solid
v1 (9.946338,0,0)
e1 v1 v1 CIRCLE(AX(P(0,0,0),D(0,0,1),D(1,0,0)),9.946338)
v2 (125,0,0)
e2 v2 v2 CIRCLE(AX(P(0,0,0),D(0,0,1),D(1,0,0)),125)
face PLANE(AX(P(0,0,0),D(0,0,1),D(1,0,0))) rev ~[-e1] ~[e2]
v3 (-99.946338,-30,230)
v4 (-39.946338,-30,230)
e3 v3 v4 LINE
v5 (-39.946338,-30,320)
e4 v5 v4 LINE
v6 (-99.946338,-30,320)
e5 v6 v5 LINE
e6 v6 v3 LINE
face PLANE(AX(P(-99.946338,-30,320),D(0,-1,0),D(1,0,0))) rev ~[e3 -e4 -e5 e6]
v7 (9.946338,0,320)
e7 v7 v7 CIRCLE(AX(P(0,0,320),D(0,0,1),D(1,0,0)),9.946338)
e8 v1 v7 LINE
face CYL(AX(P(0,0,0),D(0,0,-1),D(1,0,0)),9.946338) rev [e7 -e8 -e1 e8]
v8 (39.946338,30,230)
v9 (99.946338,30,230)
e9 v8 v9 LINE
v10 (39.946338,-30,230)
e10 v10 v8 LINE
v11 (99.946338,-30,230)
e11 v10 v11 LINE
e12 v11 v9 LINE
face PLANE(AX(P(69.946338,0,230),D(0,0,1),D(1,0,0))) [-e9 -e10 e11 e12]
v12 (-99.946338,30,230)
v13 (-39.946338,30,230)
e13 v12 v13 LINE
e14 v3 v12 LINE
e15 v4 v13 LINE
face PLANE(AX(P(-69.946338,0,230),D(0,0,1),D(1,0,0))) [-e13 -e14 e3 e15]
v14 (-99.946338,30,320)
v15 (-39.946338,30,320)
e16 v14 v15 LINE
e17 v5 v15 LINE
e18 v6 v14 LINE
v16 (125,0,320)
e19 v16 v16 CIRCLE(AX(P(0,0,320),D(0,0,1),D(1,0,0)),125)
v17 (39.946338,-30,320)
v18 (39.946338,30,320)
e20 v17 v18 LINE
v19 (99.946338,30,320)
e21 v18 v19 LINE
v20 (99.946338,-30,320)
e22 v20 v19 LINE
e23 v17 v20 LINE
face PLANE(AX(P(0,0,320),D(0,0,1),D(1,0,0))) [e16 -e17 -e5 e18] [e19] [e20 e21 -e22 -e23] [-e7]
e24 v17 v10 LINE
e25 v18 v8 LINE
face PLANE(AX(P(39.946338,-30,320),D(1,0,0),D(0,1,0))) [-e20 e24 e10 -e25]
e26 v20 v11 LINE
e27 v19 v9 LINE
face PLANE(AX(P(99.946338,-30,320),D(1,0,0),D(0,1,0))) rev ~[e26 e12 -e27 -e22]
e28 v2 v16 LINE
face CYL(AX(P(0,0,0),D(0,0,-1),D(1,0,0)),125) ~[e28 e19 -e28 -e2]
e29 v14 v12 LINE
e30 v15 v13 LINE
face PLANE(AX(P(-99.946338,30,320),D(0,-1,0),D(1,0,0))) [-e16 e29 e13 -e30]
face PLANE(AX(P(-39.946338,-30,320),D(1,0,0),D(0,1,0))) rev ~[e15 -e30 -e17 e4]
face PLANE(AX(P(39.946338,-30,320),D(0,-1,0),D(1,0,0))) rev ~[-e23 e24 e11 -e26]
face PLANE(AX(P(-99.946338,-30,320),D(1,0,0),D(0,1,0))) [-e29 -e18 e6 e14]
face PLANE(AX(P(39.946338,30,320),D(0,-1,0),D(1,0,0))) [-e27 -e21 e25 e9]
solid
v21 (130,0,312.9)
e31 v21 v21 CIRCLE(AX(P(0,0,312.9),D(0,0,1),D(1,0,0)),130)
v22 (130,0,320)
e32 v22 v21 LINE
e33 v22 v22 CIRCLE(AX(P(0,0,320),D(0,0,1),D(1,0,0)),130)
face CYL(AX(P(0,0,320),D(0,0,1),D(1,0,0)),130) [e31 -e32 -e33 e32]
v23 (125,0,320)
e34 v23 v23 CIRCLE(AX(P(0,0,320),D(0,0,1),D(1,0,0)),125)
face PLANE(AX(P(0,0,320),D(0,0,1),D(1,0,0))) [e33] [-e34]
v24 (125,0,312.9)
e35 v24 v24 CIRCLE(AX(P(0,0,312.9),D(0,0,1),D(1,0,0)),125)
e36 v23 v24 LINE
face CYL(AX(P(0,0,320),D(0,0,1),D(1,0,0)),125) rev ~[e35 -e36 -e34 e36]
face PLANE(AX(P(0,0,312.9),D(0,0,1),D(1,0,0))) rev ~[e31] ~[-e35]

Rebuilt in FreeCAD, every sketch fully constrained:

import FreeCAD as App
import Part
import Sketcher
from FreeCAD import Vector

doc = App.newDocument("Part")
params = doc.addObject("Spreadsheet::Sheet", "Params")
for row, (alias, value) in enumerate([
    ("sketch1_diameter", "250 mm"),
    ("pad1_length", "320 mm"),
    ("pocket1_length", "25 mm"),
    ("sketch3_width", "60 mm"),
    ("pocket2_length", "90 mm"),
    ("sketch4_diameter", "260 mm"),
    ("sketch4_diameter2", "250 mm"),
    ("pad2_length", "7.1 mm"),
], start=1):
    params.set(f"A{row}", alias)
    params.set(f"B{row}", "=" + value)
    params.setAlias(f"B{row}", alias)

body = doc.addObject("PartDesign::Body", "Body")

# Sketch on XY plane
sketch1 = doc.addObject("Sketcher::SketchObject", "Sketch")
body.addObject(sketch1)
sketch1.AttachmentSupport = (doc.XY_Plane, [""])
sketch1.MapMode = "FlatFace"
sketch1.addGeometry([
    Part.Circle(Vector(0, 0, 0), Vector(0, 0, 1), 125),
    Part.Circle(Vector(0, 0, 0), Vector(0, 0, 1), 10),
], False)
sketch1.addConstraint([
    Sketcher.Constraint("Coincident", 0, 3, -1, 1),
    Sketcher.Constraint("Coincident", 1, 3, -1, 1),
    Sketcher.Constraint("Diameter", 0, 250.0),
    Sketcher.Constraint("Diameter", 1, 19.892677),
])
sketch1.setExpression("Constraints[2]", "Params.sketch1_diameter")
pad1 = doc.addObject("PartDesign::Pad", "Pad")
body.addObject(pad1)
pad1.Profile = sketch1
pad1.setExpression("Length", "Params.pad1_length")

# Sketch on XY plane
sketch2 = doc.addObject("Sketcher::SketchObject", "Sketch001")
body.addObject(sketch2)
sketch2.AttachmentSupport = (doc.XY_Plane, [""])
sketch2.MapMode = "FlatFace"
sketch2.AttachmentOffset = App.Placement(Vector(0, 0, 320), App.Rotation())
sketch2.addGeometry(Part.Circle(Vector(0, 0, 0), Vector(0, 0, 1), 0.9), False)
sketch2.addConstraint([
    Sketcher.Constraint("Coincident", 0, 3, -1, 1),
    Sketcher.Constraint("Diameter", 0, 1.845436),
])
pocket1 = doc.addObject("PartDesign::Pocket", "Pocket")
body.addObject(pocket1)
pocket1.Profile = sketch2
pocket1.setExpression("Length", "Params.pocket1_length")

# Sketch on XY plane
sketch3 = doc.addObject("Sketcher::SketchObject", "Sketch002")
body.addObject(sketch3)
sketch3.AttachmentSupport = (doc.XY_Plane, [""])
sketch3.MapMode = "FlatFace"
sketch3.AttachmentOffset = App.Placement(Vector(0, 0, 320), App.Rotation())
sketch3.addGeometry([
    Part.LineSegment(Vector(-100, 30, 0), Vector(-100, -30, 0)),  # 0
    Part.LineSegment(Vector(-100, -30, 0), Vector(-40, -30, 0)),  # 1
    Part.LineSegment(Vector(-40, -30, 0), Vector(-40, 30, 0)),  # 2
    Part.LineSegment(Vector(-40, 30, 0), Vector(-100, 30, 0)),  # 3
    Part.LineSegment(Vector(40, 30, 0), Vector(40, -30, 0)),  # 4
    Part.LineSegment(Vector(40, -30, 0), Vector(100, -30, 0)),  # 5
    Part.LineSegment(Vector(100, -30, 0), Vector(100, 30, 0)),  # 6
    Part.LineSegment(Vector(100, 30, 0), Vector(40, 30, 0)),  # 7
], False)
sketch3.addConstraint([
    Sketcher.Constraint("Coincident", 0, 2, 1, 1),
    Sketcher.Constraint("Coincident", 1, 2, 2, 1),
    Sketcher.Constraint("Coincident", 2, 2, 3, 1),
    Sketcher.Constraint("Coincident", 3, 2, 0, 1),
    Sketcher.Constraint("Coincident", 4, 2, 5, 1),
    Sketcher.Constraint("Coincident", 5, 2, 6, 1),
    Sketcher.Constraint("Coincident", 6, 2, 7, 1),
    Sketcher.Constraint("Coincident", 7, 2, 4, 1),
    Sketcher.Constraint("Vertical", 0),
    Sketcher.Constraint("Horizontal", 1),
    Sketcher.Constraint("Vertical", 2),
    Sketcher.Constraint("Horizontal", 3),
    Sketcher.Constraint("Vertical", 4),
    Sketcher.Constraint("Horizontal", 5),
    Sketcher.Constraint("Vertical", 6),
    Sketcher.Constraint("Horizontal", 7),
    Sketcher.Constraint("Symmetric", 2, 2, 4, 2, -1, 1),
    Sketcher.Constraint("Symmetric", 0, 2, 6, 2, -1, 1),
    Sketcher.Constraint("Horizontal", 1, 2, 4, 2),
    Sketcher.Constraint("Equal", 7, 0),
    Sketcher.Constraint("DistanceX", 1, 1, 1, 2, 60.0),
    Sketcher.Constraint("DistanceX", 0, 2, -1, 1, 99.946338),
])
sketch3.setExpression("Constraints[20]", "Params.sketch3_width")
pocket2 = doc.addObject("PartDesign::Pocket", "Pocket001")
body.addObject(pocket2)
pocket2.Profile = sketch3
pocket2.setExpression("Length", "Params.pocket2_length")
body2 = doc.addObject("PartDesign::Body", "Body001")

# Sketch on XY plane
sketch4 = doc.addObject("Sketcher::SketchObject", "Sketch003")
body2.addObject(sketch4)
sketch4.AttachmentSupport = (doc.getObject("XY_Plane001"), [""])
sketch4.MapMode = "FlatFace"
sketch4.AttachmentOffset = App.Placement(Vector(0, 0, 320), App.Rotation())
sketch4.addGeometry([
    Part.Circle(Vector(0, 0, 0), Vector(0, 0, 1), 130),
    Part.Circle(Vector(0, 0, 0), Vector(0, 0, 1), 125),
], False)
sketch4.addConstraint([
    Sketcher.Constraint("Coincident", 0, 3, -1, 1),
    Sketcher.Constraint("Coincident", 1, 3, -1, 1),
    Sketcher.Constraint("Diameter", 0, 260.0),
    Sketcher.Constraint("Diameter", 1, 250.0),
])
sketch4.setExpression("Constraints[2]", "Params.sketch4_diameter")
sketch4.setExpression("Constraints[3]", "Params.sketch4_diameter2")
pad2 = doc.addObject("PartDesign::Pad", "Pad001")
body2.addObject(pad2)
pad2.Profile = sketch4
pad2.setExpression("Length", "Params.pad2_length")
pad2.Reversed = True

doc.recompute()
